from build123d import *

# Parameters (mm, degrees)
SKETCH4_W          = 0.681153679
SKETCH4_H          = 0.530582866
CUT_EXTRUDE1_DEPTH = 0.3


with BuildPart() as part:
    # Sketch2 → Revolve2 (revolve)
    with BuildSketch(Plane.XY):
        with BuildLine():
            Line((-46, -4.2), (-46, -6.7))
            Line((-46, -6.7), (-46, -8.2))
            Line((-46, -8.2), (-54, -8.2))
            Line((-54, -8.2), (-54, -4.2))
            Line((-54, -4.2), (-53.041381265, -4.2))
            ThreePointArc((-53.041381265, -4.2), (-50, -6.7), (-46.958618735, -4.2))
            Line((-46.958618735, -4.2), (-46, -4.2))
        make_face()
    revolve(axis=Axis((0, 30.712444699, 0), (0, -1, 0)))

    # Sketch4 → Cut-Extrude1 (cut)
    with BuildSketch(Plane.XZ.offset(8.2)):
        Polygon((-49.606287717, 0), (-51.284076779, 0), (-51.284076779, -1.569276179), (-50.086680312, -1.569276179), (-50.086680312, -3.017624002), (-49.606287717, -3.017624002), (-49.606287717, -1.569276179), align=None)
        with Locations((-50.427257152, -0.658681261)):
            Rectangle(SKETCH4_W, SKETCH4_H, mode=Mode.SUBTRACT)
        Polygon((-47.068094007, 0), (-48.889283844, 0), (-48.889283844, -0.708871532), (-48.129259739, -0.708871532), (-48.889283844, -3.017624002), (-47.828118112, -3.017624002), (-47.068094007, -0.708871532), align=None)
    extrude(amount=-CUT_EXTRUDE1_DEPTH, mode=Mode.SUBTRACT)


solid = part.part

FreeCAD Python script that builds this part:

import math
import FreeCAD as App
import Part
import Sketcher


def add_polygon(sketch, points):
    """Adds a closed chain of lines whose ends are joined by coincident constraints."""
    first, n = sketch.GeometryCount, len(points)
    for a, b in zip(points, points[1:] + points[:1]):
        sketch.addGeometry(Part.LineSegment(App.Vector(*a, 0), App.Vector(*b, 0)), False)
    for i in range(n):
        sketch.addConstraint(Sketcher.Constraint("Coincident", first + i, 2, first + (i + 1) % n, 1))

doc = App.newDocument("Part")
body = doc.addObject("PartDesign::Body", "Body")

sketch1 = body.newObject("Sketcher::SketchObject", "Sketch")
sketch1.AttachmentSupport = (doc.getObject("XY_Plane"), [""])
sketch1.MapMode = "FlatFace"
sketch1.addGeometry([
    Part.LineSegment(App.Vector(-46, -8.2, 0), App.Vector(-46, -4.2, 0)),
    Part.LineSegment(App.Vector(-46, -4.2, 0), App.Vector(-47, -4.2, 0)),
    Part.ArcOfCircle(Part.Circle(App.Vector(-50, -3.6, 0), App.Vector(0, 0, 1), 3.1), math.radians(-169), math.radians(-11)),
    Part.LineSegment(App.Vector(-53, -4.2, 0), App.Vector(-54, -4.2, 0)),
    Part.LineSegment(App.Vector(-54, -4.2, 0), App.Vector(-54, -8.2, 0)),
    Part.LineSegment(App.Vector(-54, -8.2, 0), App.Vector(-46, -8.2, 0)),
], False)
sketch1.addConstraint([
    Sketcher.Constraint("Coincident", 0, 2, 1, 1),
    Sketcher.Constraint("Coincident", 1, 2, 2, 2),
    Sketcher.Constraint("Coincident", 2, 1, 3, 1),
    Sketcher.Constraint("Coincident", 3, 2, 4, 1),
    Sketcher.Constraint("Coincident", 4, 2, 5, 1),
    Sketcher.Constraint("Coincident", 5, 2, 0, 1),
    Sketcher.Constraint("Vertical", 0),
    Sketcher.Constraint("Horizontal", 1),
    Sketcher.Constraint("Horizontal", 3),
    Sketcher.Constraint("Vertical", 4),
    Sketcher.Constraint("Horizontal", 5),
    Sketcher.Constraint("Horizontal", 1, 2, 2, 1),
    Sketcher.Constraint("Equal", 1, 3),
    Sketcher.Constraint("Radius", 2, 3.1),
    Sketcher.Constraint("DistanceX", 5, 1, 5, 2, 8.0),
    Sketcher.Constraint("DistanceY", 0, 1, 0, 2, 4.0),
    Sketcher.Constraint("DistanceX", 2, 3, -1, 1, 50.0),
    Sketcher.Constraint("DistanceY", 2, 3, -1, 1, 3.6),
    Sketcher.Constraint("DistanceY", 0, 2, -1, 1, 4.2),
])
revolution = body.newObject("PartDesign::Revolution", "Revolution")
revolution.Profile = sketch1
revolution.ReferenceAxis = (sketch1, ["V_Axis"])
revolution.Angle = 360

sketch2 = body.newObject("Sketcher::SketchObject", "Sketch001")
sketch2.AttachmentSupport = (doc.getObject("XZ_Plane"), [""])
sketch2.MapMode = "FlatFace"
sketch2.AttachmentOffset = App.Placement(App.Vector(0, 0, 8.2), App.Rotation())
add_polygon(sketch2, [(-49.61, 0), (-51.28, 0), (-51.28, -1.57), (-50.09, -1.57), (-50.09, -3.02), (-49.61, -3.02)])
add_polygon(sketch2, [(-50.09, -0.92), (-50.77, -0.92), (-50.77, -0.39), (-50.09, -0.39)])
add_polygon(sketch2, [(-47.07, 0), (-48.89, 0), (-48.89, -0.71), (-48.13, -0.71), (-48.89, -3.02), (-47.83, -3.02), (-47.07, -0.71)])
sketch2.addConstraint([
    Sketcher.Constraint("Horizontal", 0),
    Sketcher.Constraint("Vertical", 1),
    Sketcher.Constraint("Horizontal", 2),
    Sketcher.Constraint("Vertical", 3),
    Sketcher.Constraint("Horizontal", 4),
    Sketcher.Constraint("Vertical", 5),
    Sketcher.Constraint("Horizontal", 6),
    Sketcher.Constraint("Vertical", 7),
    Sketcher.Constraint("Horizontal", 8),
    Sketcher.Constraint("Vertical", 9),
    Sketcher.Constraint("Horizontal", 10),
    Sketcher.Constraint("Vertical", 11),
    Sketcher.Constraint("Horizontal", 12),
    Sketcher.Constraint("Horizontal", 14),
    Sketcher.Constraint("Vertical", 16),
    Sketcher.Constraint("PointOnObject", 0, 2, -1),
    Sketcher.Constraint("PointOnObject", 10, 2, -1),
    Sketcher.Constraint("Parallel", 13, 15),
    Sketcher.Constraint("Horizontal", 4, 2, 13, 2),
    Sketcher.Constraint("Horizontal", 12, 2, 15, 2),
    Sketcher.Constraint("Vertical", 3, 2, 8, 2),
    Sketcher.Constraint("Vertical", 11, 2, 13, 2),
    Sketcher.Constraint("DistanceX", 0, 2, 0, 1, 1.677789),
    Sketcher.Constraint("DistanceX", 10, 2, 10, 1, 1.82119),
    Sketcher.Constraint("DistanceY", 11, 2, 11, 1, 0.708872),
    Sketcher.Constraint("DistanceY", 9, 2, 11, 2, 0.215101),
    Sketcher.Constraint("DistanceX", 2, 1, 2, 2, 1.197396),
    Sketcher.Constraint("DistanceX", 6, 2, 6, 1, 0.681154),
    Sketcher.Constraint("DistanceX", 12, 1, 12, 2, 0.760024),
    Sketcher.Constraint("DistanceY", 1, 2, 1, 1, 1.569276),
    Sketcher.Constraint("DistanceY", 3, 2, 3, 1, 1.448348),
    Sketcher.Constraint("DistanceY", 7, 1, 7, 2, 0.530583),
    Sketcher.Constraint("DistanceX", 2, 2, -1, 1, 50.08668),
    Sketcher.Constraint("DistanceX", 12, 2, -1, 1, 48.12926),
])
pocket1 = body.newObject("PartDesign::Pocket", "Pocket")
pocket1.Profile = sketch2
pocket1.Length = 0.3

doc.recompute()
